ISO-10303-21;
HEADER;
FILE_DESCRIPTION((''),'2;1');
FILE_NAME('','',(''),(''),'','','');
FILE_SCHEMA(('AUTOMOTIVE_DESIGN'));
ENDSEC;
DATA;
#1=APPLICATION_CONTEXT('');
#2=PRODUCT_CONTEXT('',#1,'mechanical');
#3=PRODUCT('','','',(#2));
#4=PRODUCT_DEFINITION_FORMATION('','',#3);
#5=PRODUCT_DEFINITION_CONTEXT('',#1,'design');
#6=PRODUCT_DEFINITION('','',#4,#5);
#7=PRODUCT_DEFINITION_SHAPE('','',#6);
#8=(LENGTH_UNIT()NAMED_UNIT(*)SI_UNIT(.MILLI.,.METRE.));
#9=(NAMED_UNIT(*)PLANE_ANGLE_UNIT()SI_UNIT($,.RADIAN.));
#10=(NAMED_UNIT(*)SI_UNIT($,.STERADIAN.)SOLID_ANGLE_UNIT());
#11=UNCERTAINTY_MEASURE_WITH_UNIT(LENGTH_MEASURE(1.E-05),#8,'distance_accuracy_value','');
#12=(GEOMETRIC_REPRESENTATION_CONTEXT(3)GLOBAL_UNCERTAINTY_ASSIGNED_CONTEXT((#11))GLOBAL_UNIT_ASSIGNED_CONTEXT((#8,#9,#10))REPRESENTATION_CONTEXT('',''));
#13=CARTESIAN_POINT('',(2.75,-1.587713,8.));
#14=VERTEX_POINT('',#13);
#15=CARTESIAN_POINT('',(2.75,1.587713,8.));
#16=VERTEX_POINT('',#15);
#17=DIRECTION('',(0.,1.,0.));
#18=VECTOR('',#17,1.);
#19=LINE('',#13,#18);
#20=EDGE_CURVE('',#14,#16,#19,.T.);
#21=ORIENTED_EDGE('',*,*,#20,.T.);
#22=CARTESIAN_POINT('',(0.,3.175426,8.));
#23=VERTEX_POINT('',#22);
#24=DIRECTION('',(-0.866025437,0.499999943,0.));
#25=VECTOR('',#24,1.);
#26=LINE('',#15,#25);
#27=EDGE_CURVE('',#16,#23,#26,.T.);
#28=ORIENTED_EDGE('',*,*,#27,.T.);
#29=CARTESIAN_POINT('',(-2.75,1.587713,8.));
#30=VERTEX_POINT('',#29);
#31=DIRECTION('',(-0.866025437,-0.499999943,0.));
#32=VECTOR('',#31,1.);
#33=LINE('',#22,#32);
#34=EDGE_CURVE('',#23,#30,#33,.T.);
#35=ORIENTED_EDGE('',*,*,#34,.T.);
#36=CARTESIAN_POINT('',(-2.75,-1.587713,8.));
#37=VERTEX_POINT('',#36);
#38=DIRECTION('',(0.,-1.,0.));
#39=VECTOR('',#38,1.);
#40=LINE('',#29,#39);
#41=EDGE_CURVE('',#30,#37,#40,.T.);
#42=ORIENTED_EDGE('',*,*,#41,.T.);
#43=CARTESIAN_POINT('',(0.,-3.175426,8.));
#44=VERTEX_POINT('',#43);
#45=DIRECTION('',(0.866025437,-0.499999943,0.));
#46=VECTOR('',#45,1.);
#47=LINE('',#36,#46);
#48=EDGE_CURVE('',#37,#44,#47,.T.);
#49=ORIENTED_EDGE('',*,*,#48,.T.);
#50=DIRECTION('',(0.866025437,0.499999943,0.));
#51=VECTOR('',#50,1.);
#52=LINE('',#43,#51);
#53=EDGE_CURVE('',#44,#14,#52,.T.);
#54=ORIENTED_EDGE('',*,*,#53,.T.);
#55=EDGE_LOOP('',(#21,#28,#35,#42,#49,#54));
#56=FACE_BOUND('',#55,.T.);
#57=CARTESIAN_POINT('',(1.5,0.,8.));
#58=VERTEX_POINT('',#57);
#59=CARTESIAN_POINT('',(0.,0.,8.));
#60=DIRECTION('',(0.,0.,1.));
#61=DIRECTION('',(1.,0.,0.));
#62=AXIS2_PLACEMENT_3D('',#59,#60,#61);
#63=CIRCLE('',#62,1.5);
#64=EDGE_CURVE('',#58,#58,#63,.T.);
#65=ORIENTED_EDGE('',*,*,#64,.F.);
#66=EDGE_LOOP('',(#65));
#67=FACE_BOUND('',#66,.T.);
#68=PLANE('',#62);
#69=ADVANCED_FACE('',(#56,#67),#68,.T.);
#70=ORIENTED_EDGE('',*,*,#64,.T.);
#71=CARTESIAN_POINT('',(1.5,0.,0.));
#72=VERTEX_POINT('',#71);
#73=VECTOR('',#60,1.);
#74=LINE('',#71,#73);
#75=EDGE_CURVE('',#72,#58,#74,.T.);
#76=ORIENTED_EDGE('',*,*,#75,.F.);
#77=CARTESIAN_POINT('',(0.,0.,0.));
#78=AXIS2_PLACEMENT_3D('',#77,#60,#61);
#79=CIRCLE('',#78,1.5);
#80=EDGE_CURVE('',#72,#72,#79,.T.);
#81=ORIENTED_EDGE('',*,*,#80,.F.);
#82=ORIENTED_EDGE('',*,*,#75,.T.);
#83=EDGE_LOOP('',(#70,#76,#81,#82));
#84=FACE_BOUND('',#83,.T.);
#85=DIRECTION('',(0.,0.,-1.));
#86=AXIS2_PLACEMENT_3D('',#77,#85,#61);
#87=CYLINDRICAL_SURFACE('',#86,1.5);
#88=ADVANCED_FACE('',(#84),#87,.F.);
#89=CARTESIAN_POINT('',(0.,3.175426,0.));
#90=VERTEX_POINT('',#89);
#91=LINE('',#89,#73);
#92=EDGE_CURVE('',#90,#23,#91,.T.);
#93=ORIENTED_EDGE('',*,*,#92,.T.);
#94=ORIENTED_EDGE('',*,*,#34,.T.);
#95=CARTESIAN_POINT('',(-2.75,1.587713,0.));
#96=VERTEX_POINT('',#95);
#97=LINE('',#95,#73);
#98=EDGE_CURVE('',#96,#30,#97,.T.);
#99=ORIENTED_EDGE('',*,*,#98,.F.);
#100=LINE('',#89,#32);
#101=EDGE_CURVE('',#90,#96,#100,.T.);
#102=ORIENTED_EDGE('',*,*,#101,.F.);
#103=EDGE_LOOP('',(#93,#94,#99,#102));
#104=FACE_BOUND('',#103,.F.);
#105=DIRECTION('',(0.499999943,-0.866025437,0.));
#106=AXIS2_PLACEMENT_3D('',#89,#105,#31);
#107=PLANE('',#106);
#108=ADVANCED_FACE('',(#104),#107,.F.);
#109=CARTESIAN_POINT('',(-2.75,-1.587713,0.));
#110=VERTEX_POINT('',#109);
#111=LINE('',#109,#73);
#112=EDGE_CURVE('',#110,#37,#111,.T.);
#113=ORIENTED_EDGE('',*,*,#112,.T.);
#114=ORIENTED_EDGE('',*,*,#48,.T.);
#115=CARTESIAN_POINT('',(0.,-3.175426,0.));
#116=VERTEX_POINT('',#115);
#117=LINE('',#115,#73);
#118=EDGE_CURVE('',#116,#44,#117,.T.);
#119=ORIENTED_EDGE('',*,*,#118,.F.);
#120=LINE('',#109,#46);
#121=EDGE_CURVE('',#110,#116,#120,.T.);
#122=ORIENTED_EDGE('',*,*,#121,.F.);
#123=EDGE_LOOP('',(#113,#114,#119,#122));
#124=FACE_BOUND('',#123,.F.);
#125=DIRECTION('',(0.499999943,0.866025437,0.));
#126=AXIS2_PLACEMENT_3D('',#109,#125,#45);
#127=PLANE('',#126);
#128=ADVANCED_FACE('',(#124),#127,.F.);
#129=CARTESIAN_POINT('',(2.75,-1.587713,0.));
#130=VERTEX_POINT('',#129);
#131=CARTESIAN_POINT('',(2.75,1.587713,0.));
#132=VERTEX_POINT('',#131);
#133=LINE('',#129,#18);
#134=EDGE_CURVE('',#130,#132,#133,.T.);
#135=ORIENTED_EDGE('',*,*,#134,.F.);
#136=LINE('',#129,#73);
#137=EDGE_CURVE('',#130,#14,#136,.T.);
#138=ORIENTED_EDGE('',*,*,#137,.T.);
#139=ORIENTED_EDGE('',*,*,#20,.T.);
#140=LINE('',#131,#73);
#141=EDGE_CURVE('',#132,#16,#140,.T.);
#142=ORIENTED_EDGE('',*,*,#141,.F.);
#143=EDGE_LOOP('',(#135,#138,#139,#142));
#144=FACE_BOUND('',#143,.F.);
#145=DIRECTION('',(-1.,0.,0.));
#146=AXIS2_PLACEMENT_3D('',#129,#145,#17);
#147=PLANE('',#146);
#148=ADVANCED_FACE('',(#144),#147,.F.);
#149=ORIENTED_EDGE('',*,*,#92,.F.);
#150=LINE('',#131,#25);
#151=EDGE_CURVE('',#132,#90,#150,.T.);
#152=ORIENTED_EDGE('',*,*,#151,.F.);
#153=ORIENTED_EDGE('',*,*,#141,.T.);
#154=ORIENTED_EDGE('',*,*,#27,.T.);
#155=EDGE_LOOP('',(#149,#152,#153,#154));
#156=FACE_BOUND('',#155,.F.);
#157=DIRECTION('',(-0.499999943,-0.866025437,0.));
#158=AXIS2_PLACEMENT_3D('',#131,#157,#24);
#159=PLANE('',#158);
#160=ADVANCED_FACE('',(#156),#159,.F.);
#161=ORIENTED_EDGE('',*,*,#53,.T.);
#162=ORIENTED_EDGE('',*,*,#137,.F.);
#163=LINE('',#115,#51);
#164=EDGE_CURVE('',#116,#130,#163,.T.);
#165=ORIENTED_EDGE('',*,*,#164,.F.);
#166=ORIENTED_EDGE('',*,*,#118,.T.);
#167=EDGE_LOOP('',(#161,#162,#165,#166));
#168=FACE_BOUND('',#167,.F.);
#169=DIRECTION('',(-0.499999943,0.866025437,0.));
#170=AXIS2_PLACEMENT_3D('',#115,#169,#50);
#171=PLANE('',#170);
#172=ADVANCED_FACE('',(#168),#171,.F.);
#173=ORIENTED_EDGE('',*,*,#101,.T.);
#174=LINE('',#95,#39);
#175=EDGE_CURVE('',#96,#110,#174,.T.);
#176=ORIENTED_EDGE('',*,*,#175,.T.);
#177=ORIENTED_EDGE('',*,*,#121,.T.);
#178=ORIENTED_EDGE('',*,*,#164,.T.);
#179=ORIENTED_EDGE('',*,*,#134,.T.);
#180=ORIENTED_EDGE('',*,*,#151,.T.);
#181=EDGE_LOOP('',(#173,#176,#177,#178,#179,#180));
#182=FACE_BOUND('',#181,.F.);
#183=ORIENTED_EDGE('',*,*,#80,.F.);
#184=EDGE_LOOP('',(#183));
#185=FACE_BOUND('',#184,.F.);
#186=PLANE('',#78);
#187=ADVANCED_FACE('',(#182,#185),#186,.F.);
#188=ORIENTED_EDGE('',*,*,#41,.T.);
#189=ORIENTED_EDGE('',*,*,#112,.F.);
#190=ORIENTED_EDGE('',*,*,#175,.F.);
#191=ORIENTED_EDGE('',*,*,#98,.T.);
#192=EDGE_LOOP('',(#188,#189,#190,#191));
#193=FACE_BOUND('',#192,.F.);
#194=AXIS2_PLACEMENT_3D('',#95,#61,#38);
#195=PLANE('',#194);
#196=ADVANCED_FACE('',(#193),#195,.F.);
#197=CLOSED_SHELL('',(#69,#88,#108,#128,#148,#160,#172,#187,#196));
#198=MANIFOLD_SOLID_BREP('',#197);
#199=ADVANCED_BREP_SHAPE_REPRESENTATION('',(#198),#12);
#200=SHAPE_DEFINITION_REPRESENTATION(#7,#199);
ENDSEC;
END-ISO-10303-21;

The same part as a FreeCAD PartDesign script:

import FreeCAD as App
import Part
import Sketcher
from FreeCAD import Vector
Q = App.Units.Quantity


def add_polygon(sketch, points):
    """Adds a closed chain of lines whose ends are joined by coincident constraints."""
    first, n = sketch.GeometryCount, len(points)
    for a, b in zip(points, points[1:] + points[:1]):
        sketch.addGeometry(Part.LineSegment(App.Vector(*a, 0), App.Vector(*b, 0)), False)
    for i in range(n):
        sketch.addConstraint(Sketcher.Constraint("Coincident", first + i, 2, first + (i + 1) % n, 1))

doc = App.newDocument("Part")
body = doc.addObject("PartDesign::Body", "Body")

# Sketch on XY plane
sketch1 = doc.addObject("Sketcher::SketchObject", "Sketch")
body.addObject(sketch1)
sketch1.AttachmentSupport = (doc.XY_Plane, [""])
sketch1.MapMode = "FlatFace"
add_polygon(sketch1, [(0, 3.2), (-2.8, 1.6), (-2.8, -1.6), (0, -3.2), (2.8, -1.6), (2.8, 1.6)])  # lines 0-5
sketch1.addGeometry(Part.Circle(Vector(0, 0, 0), Vector(0, 0, 1), 1.5), False)  # 6
sketch1.addConstraint([
    Sketcher.Constraint("Vertical", 1),
    Sketcher.Constraint("Vertical", 4),
    Sketcher.Constraint("Coincident", 6, 3, -1, 1),
    Sketcher.Constraint("Symmetric", 0, 2, 3, 2, -1, 1),
    Sketcher.Constraint("Symmetric", 2, 2, 5, 2, -1, 1),
    Sketcher.Constraint("PointOnObject", 2, 2, -2),
    Sketcher.Constraint("Parallel", 2, 5),
    Sketcher.Constraint("Horizontal", 1, 2, 3, 2),
    Sketcher.Constraint("Diameter", 6, Q("3 mm")),
    Sketcher.Constraint("Angle", 0, Q("-150.000004 deg")),
    Sketcher.Constraint("DistanceX", 1, 2, 3, 2, Q("5.5 mm")),
    Sketcher.Constraint("DistanceY", 1, 2, 1, 1, Q("3.175426 mm")),
])
pad1 = doc.addObject("PartDesign::Pad", "Pad")
body.addObject(pad1)
pad1.Profile = sketch1
pad1.Length = 8

doc.recompute()
